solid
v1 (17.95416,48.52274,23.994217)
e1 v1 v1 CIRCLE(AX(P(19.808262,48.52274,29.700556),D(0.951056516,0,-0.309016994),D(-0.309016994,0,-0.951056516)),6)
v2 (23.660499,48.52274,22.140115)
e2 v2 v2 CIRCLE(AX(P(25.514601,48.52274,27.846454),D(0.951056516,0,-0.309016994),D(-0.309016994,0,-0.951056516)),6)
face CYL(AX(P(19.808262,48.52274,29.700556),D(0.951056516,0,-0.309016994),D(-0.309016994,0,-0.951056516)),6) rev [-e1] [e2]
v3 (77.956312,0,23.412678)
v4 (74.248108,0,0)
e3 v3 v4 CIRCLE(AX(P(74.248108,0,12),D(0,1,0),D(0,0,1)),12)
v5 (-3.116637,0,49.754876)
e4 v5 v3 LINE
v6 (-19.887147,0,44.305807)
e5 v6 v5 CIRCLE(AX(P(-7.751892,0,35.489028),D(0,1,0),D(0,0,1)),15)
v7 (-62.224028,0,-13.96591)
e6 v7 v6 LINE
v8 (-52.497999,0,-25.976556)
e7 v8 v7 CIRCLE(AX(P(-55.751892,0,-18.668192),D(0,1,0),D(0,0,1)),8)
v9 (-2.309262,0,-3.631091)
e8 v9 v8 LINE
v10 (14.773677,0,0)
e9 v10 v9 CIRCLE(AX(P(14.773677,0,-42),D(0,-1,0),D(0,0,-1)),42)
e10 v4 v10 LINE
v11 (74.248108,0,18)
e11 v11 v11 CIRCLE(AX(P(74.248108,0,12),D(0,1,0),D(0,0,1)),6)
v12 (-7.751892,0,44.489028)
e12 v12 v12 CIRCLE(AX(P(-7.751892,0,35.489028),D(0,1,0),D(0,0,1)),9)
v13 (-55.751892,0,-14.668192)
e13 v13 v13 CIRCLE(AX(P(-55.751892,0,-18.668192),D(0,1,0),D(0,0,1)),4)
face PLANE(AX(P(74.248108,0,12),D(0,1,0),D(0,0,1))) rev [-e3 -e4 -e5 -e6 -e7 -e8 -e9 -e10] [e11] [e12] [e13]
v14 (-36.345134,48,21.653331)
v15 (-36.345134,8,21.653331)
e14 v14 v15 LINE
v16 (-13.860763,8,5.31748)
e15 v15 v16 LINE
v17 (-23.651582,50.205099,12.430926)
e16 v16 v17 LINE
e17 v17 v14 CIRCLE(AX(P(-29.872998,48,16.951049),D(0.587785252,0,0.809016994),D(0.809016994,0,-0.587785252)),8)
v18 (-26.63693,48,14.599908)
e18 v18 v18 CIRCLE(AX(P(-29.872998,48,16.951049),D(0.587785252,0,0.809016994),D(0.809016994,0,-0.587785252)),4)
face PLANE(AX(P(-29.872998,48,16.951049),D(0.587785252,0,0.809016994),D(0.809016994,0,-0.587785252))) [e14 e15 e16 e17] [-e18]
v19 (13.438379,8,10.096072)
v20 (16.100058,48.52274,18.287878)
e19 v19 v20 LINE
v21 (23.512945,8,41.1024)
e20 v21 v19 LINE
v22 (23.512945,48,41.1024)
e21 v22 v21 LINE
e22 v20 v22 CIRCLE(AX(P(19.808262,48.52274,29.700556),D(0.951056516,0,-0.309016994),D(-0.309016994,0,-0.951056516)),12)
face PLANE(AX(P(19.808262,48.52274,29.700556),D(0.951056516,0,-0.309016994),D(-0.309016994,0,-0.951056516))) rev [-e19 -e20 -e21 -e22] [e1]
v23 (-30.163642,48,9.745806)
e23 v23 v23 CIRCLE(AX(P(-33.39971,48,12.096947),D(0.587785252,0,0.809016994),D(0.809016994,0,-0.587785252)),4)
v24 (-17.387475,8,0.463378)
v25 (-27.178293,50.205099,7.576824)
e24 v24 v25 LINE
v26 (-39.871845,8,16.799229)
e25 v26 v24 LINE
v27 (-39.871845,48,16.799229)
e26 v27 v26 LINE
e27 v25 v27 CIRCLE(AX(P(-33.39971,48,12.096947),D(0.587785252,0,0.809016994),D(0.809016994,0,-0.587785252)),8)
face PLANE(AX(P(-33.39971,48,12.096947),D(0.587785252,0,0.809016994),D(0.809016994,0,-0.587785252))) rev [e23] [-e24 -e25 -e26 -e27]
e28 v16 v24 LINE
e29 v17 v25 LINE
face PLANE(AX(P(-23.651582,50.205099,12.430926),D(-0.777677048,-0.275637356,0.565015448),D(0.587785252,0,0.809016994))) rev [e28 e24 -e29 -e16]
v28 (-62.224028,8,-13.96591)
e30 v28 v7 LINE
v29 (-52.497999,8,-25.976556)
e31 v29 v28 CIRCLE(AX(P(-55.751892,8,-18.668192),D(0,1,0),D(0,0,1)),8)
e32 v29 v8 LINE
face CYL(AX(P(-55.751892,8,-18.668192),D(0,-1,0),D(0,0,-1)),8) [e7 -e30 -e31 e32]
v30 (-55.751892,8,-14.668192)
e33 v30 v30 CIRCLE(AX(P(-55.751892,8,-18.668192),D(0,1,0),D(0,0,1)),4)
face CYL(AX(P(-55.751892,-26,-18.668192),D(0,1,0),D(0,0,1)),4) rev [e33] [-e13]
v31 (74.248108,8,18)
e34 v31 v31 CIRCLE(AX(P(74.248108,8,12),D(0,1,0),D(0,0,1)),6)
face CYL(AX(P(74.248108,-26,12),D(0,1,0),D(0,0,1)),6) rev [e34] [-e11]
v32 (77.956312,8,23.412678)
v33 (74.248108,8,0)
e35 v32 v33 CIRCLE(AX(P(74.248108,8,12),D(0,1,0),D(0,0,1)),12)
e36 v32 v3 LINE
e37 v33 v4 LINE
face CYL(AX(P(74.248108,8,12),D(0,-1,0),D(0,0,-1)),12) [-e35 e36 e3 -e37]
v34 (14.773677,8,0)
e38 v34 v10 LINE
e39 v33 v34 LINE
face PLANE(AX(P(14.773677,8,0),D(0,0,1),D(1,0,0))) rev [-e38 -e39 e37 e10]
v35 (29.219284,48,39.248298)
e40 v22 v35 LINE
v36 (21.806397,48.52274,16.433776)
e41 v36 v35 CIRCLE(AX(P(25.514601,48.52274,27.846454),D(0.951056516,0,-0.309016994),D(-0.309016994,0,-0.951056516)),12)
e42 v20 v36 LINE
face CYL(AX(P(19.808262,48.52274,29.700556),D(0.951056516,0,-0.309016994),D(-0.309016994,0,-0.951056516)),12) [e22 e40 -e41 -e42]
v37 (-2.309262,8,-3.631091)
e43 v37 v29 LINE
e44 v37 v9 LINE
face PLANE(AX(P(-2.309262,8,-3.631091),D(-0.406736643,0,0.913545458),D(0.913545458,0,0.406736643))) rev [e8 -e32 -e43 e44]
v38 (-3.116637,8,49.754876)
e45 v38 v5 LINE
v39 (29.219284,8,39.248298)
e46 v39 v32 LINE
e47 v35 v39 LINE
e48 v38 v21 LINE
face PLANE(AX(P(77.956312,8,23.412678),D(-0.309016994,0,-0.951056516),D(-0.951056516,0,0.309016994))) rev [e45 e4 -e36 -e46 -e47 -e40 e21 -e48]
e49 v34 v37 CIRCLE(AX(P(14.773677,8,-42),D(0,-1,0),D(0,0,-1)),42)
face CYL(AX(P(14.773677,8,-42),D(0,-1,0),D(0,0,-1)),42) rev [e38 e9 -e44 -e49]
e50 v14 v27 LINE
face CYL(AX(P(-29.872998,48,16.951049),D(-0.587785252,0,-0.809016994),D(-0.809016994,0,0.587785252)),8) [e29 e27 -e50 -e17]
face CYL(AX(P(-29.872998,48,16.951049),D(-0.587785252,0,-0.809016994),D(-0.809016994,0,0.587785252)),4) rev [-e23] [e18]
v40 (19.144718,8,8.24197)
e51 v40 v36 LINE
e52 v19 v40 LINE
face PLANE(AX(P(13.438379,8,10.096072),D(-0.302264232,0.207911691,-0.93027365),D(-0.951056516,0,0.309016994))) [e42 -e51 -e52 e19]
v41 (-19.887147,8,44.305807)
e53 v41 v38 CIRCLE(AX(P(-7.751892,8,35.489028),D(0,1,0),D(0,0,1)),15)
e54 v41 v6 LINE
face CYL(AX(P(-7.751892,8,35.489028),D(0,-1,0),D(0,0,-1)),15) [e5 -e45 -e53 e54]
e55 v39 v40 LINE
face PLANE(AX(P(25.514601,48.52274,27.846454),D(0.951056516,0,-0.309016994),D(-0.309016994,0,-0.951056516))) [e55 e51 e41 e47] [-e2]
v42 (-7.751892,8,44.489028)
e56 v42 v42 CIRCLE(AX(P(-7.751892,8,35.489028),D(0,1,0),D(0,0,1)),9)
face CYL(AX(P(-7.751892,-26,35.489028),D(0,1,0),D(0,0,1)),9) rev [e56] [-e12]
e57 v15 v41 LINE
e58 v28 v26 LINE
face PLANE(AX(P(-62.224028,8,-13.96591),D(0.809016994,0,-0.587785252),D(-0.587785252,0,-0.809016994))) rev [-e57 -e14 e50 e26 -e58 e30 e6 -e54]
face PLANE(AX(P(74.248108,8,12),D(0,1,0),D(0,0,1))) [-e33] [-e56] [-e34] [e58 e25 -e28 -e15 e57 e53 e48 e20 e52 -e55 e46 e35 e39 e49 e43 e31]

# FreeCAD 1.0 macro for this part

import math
import FreeCAD as App
import Part
import Sketcher
from FreeCAD import Vector
Q = App.Units.Quantity

doc = App.newDocument("Part")
body = doc.addObject("PartDesign::Body", "Body")

# Sketch on XZ plane
sketch1 = body.newObject("Sketcher::SketchObject", "Sketch")
sketch1.AttachmentSupport = (doc.getObject("XZ_Plane"), [""])
sketch1.MapMode = "FlatFace"
sketch1.addGeometry([
    Part.LineSegment(Vector(74, 0, 0), Vector(15, 0, 0)),  # 0
    Part.ArcOfCircle(Part.Circle(Vector(15, -42, 0), Vector(0, 0, 1), 42), math.radians(90), math.radians(114)),  # 1
    Part.LineSegment(Vector(-2, -4, 0), Vector(-52, -26, 0)),  # 2
    Part.ArcOfCircle(Part.Circle(Vector(-56, -19, 0), Vector(0, 0, 1), 8), math.radians(144), math.radians(294)),  # 3
    Part.LineSegment(Vector(-62, -14, 0), Vector(-20, 44, 0)),  # 4
    Part.ArcOfCircle(Part.Circle(Vector(-8, 35, 0), Vector(0, 0, 1), 15), math.radians(72), math.radians(144)),  # 5
    Part.LineSegment(Vector(-3, 50, 0), Vector(78, 23, 0)),  # 6
    Part.ArcOfCircle(Part.Circle(Vector(74, 12, 0), Vector(0, 0, 1), 12), math.radians(-90), math.radians(72)),  # 7
], False)
sketch1.addConstraint([
    Sketcher.Constraint("Tangent", 0, 2, 1, 1),
    Sketcher.Constraint("Tangent", 1, 2, 2, 1),
    Sketcher.Constraint("Tangent", 2, 2, 3, 2),
    Sketcher.Constraint("Tangent", 3, 1, 4, 1),
    Sketcher.Constraint("Tangent", 4, 2, 5, 2),
    Sketcher.Constraint("Tangent", 5, 1, 6, 1),
    Sketcher.Constraint("Tangent", 6, 2, 7, 2),
    Sketcher.Constraint("Tangent", 7, 1, 0, 1),
    Sketcher.Constraint("Horizontal", 0),
    Sketcher.Constraint("PointOnObject", 0, 2, -1),
    Sketcher.Constraint("Radius", 1, 42.0),
    Sketcher.Constraint("Radius", 3, 8.0),
    Sketcher.Constraint("Radius", 5, 15.0),
    Sketcher.Constraint("Radius", 7, 12.0),
    Sketcher.Constraint("Angle", 2, Q("-156 deg")),
    Sketcher.Constraint("Angle", 4, Q("54 deg")),
    Sketcher.Constraint("Angle", 6, Q("-18 deg")),
    Sketcher.Constraint("DistanceX", 3, 3, 5, 3, 48.0),
    Sketcher.Constraint("DistanceX", 5, 3, 7, 3, 82.0),
    Sketcher.Constraint("DistanceX", 2, 2, -1, 1, 52.497999),
])
pad1 = body.newObject("PartDesign::Pad", "Pad")
pad1.Profile = sketch1
pad1.Length = 8
pad1.Reversed = True

# Sketch on XZ plane
sketch2 = body.newObject("Sketcher::SketchObject", "Sketch001")
sketch2.AttachmentSupport = (doc.getObject("XZ_Plane"), [""])
sketch2.MapMode = "FlatFace"
sketch2.AttachmentOffset = App.Placement(Vector(0, 0, -8), App.Rotation())
sketch2.addGeometry([
    Part.Circle(Vector(74.2, 12, 0), Vector(0, 0, 1), 6),
    Part.Circle(Vector(-55.8, -18.7, 0), Vector(0, 0, 1), 4),
    Part.Circle(Vector(-7.8, 35.5, 0), Vector(0, 0, 1), 9),
], False)
sketch2.addConstraint([
    Sketcher.Constraint("Diameter", 0, 12.0),
    Sketcher.Constraint("Diameter", 1, 8.0),
    Sketcher.Constraint("Diameter", 2, 18.0),
    Sketcher.Constraint("DistanceY", -1, 1, 0, 3, 12.0),
    Sketcher.Constraint("DistanceX", 1, 3, 0, 3, 130.0),
    Sketcher.Constraint("DistanceX", 1, 3, 2, 3, 48.0),
    Sketcher.Constraint("DistanceX", -1, 1, 0, 3, 74.248108),
    Sketcher.Constraint("DistanceY", -1, 1, 2, 3, 35.489028),
    Sketcher.Constraint("DistanceY", 1, 3, 2, 3, 54.157221),
])
pocket1 = body.newObject("PartDesign::Pocket", "Pocket")
pocket1.Profile = sketch2
pocket1.Length = 34
pocket1.Reversed = True

# Sketch on an angled plane
sketch3 = body.newObject("Sketcher::SketchObject", "Sketch002")
sketch3.Placement = App.Placement(Vector(14.894306, 0, -4.839453), App.Rotation(Vector(-0.309016994, 0, -0.951056516), Vector(0, 0.999999999, 0), Vector(0.951056516, 0, -0.309016994), "ZXY"))
sketch3.addGeometry([
    Part.LineSegment(Vector(-46, 48, 0), Vector(-46, 8, 0)),  # 0
    Part.LineSegment(Vector(-46, 8, 0), Vector(-14, 8, 0)),  # 1
    Part.LineSegment(Vector(-14, 8, 0), Vector(-22, 49, 0)),  # 2
    Part.ArcOfCircle(Part.Circle(Vector(-34, 49, 0), Vector(0, 0, 1), 12), math.radians(0), math.radians(182)),  # 3
    Part.Circle(Vector(-34, 49, 0), Vector(0, 0, 1), 6),  # 4
], False)
sketch3.addConstraint([
    Sketcher.Constraint("Coincident", 0, 2, 1, 1),
    Sketcher.Constraint("Coincident", 1, 2, 2, 1),
    Sketcher.Constraint("Coincident", 2, 2, 3, 1),
    Sketcher.Constraint("Coincident", 3, 2, 0, 1),
    Sketcher.Constraint("Vertical", 0),
    Sketcher.Constraint("Horizontal", 1),
    Sketcher.Constraint("Coincident", 4, 3, 3, 3),
    Sketcher.Constraint("Horizontal", 4, 3, 2, 2),
    Sketcher.Constraint("Diameter", 4, 12.0),
    Sketcher.Constraint("Radius", 3, 12.0),
    Sketcher.Constraint("DistanceY", 0, 2, 0, 1, 40.0),
    Sketcher.Constraint("Angle", 2, Q("102 deg")),
    Sketcher.Constraint("DistanceY", -1, 1, 0, 2, 8.0),
    Sketcher.Constraint("Distance", 2, 41.428042),
    Sketcher.Constraint("DistanceX", 3, 3, -1, 1, 34.367996),
])
pad2 = body.newObject("PartDesign::Pad", "Pad001")
pad2.Profile = sketch3
pad2.Length = 6
pad2.Reversed = True

# Sketch on an angled plane
sketch4 = body.newObject("Sketcher::SketchObject", "Sketch003")
sketch4.Placement = App.Placement(Vector(-5.786876, 0, -7.964951), App.Rotation(Vector(0.809016994, 0, -0.587785252), Vector(0, 0.999999999, 0), Vector(0.587785252, 0, 0.809016994), "ZXY"))
sketch4.addGeometry([
    Part.LineSegment(Vector(-42.1, 48, 0), Vector(-42.1, 8, 0)),  # 0
    Part.LineSegment(Vector(-42.1, 8, 0), Vector(-14.3, 8, 0)),  # 1
    Part.LineSegment(Vector(-14.3, 8, 0), Vector(-26.4, 50.2, 0)),  # 2
    Part.ArcOfCircle(Part.Circle(Vector(-34.1, 48, 0), Vector(0, 0, 1), 8), math.radians(16), math.radians(180)),  # 3
    Part.Circle(Vector(-34.1, 48, 0), Vector(0, 0, 1), 4),  # 4
], False)
sketch4.addConstraint([
    Sketcher.Constraint("Coincident", 0, 2, 1, 1),
    Sketcher.Constraint("Coincident", 1, 2, 2, 1),
    Sketcher.Constraint("Tangent", 2, 2, 3, 1),
    Sketcher.Constraint("Tangent", 3, 2, 0, 1),
    Sketcher.Constraint("Vertical", 0),
    Sketcher.Constraint("Horizontal", 1),
    Sketcher.Constraint("Coincident", 4, 3, 3, 3),
    Sketcher.Constraint("Diameter", 4, 8.0),
    Sketcher.Constraint("Radius", 3, 8.0),
    Sketcher.Constraint("DistanceY", 0, 2, 0, 1, 40.0),
    Sketcher.Constraint("Angle", 2, Q("106 deg")),
    Sketcher.Constraint("DistanceY", -1, 1, 3, 3, 48.0),
    Sketcher.Constraint("DistanceX", 3, 3, -1, 1, 34.13134),
])
pad3 = body.newObject("PartDesign::Pad", "Pad002")
pad3.Profile = sketch4
pad3.Length = 6

doc.recompute()
